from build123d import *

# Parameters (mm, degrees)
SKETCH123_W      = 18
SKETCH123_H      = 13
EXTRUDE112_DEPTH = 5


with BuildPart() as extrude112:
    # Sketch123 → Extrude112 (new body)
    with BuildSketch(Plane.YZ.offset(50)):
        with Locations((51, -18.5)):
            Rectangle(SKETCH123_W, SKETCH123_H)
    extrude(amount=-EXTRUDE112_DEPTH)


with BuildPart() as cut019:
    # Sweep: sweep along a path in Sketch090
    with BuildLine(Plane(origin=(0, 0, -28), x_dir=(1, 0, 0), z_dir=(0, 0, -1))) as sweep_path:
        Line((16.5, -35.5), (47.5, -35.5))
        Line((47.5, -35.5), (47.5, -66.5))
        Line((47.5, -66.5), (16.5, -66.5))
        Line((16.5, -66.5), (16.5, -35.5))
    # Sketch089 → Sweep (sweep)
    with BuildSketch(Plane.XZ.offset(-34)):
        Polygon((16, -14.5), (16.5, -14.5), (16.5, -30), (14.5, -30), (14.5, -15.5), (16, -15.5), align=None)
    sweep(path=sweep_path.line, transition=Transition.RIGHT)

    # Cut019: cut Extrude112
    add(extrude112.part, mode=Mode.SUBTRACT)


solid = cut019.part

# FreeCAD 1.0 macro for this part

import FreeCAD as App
import Part
import Sketcher
Q = App.Units.Quantity


def add_polygon(sketch, points):
    """Adds a closed chain of lines whose ends are joined by coincident constraints."""
    first, n = sketch.GeometryCount, len(points)
    for a, b in zip(points, points[1:] + points[:1]):
        sketch.addGeometry(Part.LineSegment(App.Vector(*a, 0), App.Vector(*b, 0)), False)
    for i in range(n):
        sketch.addConstraint(Sketcher.Constraint("Coincident", first + i, 2, first + (i + 1) % n, 1))

doc = App.newDocument("Part")
body = doc.addObject("PartDesign::Body", "Body")

sketch1 = body.newObject("Sketcher::SketchObject", "Sketch")
sketch1.AttachmentSupport = (doc.getObject("YZ_Plane"), [""])
sketch1.MapMode = "FlatFace"
sketch1.AttachmentOffset = App.Placement(App.Vector(0, 0, 50), App.Rotation())
add_polygon(sketch1, [(42, -12), (42, -25), (60, -25), (60, -12)])
sketch1.addConstraint(Sketcher.Constraint("Vertical", 0))
sketch1.addConstraint(Sketcher.Constraint("Horizontal", 1))
sketch1.addConstraint(Sketcher.Constraint("Vertical", 2))
sketch1.addConstraint(Sketcher.Constraint("Horizontal", 3))
sketch1.addConstraint(Sketcher.Constraint("DistanceX", 1, 1, 1, 2, Q("18 mm")))
sketch1.addConstraint(Sketcher.Constraint("DistanceY", 0, 2, 0, 1, Q("13 mm")))
sketch1.addConstraint(Sketcher.Constraint("DistanceX", -1, 1, 0, 2, Q("42 mm")))
sketch1.addConstraint(Sketcher.Constraint("DistanceY", 0, 2, -1, 1, Q("25 mm")))
pad1 = body.newObject("PartDesign::Pad", "Pad")
pad1.Profile = sketch1
pad1.Length = 5
pad1.Reversed = True
body2 = doc.addObject("PartDesign::Body", "Body001")

sketch2 = body2.newObject("Sketcher::SketchObject", "Sketch001")
sketch2.AttachmentSupport = (doc.getObject("XZ_Plane001"), [""])
sketch2.MapMode = "FlatFace"
sketch2.AttachmentOffset = App.Placement(App.Vector(0, 0, -34), App.Rotation())
add_polygon(sketch2, [(16.5, -14.5), (16, -14.5), (16, -15.5), (14.5, -15.5), (14.5, -30), (16.5, -30)])
sketch2.addConstraint(Sketcher.Constraint("Horizontal", 0))
sketch2.addConstraint(Sketcher.Constraint("Vertical", 1))
sketch2.addConstraint(Sketcher.Constraint("Horizontal", 2))
sketch2.addConstraint(Sketcher.Constraint("Vertical", 3))
sketch2.addConstraint(Sketcher.Constraint("Horizontal", 4))
sketch2.addConstraint(Sketcher.Constraint("Vertical", 5))
sketch2.addConstraint(Sketcher.Constraint("DistanceX", 4, 1, 4, 2, Q("2 mm")))
sketch2.addConstraint(Sketcher.Constraint("DistanceY", 1, 2, 1, 1, Q("1 mm")))
sketch2.addConstraint(Sketcher.Constraint("DistanceX", 0, 2, 0, 1, Q("0.5 mm")))
sketch2.addConstraint(Sketcher.Constraint("DistanceY", 3, 2, 3, 1, Q("14.5 mm")))
sketch2.addConstraint(Sketcher.Constraint("DistanceX", -1, 1, 0, 2, Q("16 mm")))
sketch2.addConstraint(Sketcher.Constraint("DistanceY", 3, 2, -1, 1, Q("30 mm")))

sketch3 = body2.newObject("Sketcher::SketchObject", "Sketch002")
sketch3.AttachmentSupport = (doc.getObject("XY_Plane001"), [""])
sketch3.MapMode = "FlatFace"
sketch3.AttachmentOffset = App.Placement(App.Vector(0, 0, -28), App.Rotation())
add_polygon(sketch3, [(16.5, 35.5), (47.5, 35.5), (47.5, 66.5), (16.5, 66.5)])
sketch3.addConstraint(Sketcher.Constraint("Horizontal", 0))
sketch3.addConstraint(Sketcher.Constraint("Vertical", 1))
sketch3.addConstraint(Sketcher.Constraint("Horizontal", 2))
sketch3.addConstraint(Sketcher.Constraint("Vertical", 3))
sketch3.addConstraint(Sketcher.Constraint("Equal", 2, 1))
sketch3.addConstraint(Sketcher.Constraint("DistanceX", 0, 1, 0, 2, Q("31 mm")))
sketch3.addConstraint(Sketcher.Constraint("DistanceX", -1, 1, 0, 2, Q("47.5 mm")))
sketch3.addConstraint(Sketcher.Constraint("DistanceY", -1, 1, 0, 2, Q("35.5 mm")))
doc.recompute()

additivepipe = body2.newObject("PartDesign::AdditivePipe", "AdditivePipe")
additivepipe.Profile = sketch2
additivepipe.Spine = (sketch3, ["Edge1", "Edge2", "Edge3", "Edge4"])
additivepipe.Transition = "Right corner"
doc.recompute()

boolean = body2.newObject("PartDesign::Boolean", "Boolean")
boolean.Type = "Cut"
boolean.addObjects([body])

doc.recompute()
